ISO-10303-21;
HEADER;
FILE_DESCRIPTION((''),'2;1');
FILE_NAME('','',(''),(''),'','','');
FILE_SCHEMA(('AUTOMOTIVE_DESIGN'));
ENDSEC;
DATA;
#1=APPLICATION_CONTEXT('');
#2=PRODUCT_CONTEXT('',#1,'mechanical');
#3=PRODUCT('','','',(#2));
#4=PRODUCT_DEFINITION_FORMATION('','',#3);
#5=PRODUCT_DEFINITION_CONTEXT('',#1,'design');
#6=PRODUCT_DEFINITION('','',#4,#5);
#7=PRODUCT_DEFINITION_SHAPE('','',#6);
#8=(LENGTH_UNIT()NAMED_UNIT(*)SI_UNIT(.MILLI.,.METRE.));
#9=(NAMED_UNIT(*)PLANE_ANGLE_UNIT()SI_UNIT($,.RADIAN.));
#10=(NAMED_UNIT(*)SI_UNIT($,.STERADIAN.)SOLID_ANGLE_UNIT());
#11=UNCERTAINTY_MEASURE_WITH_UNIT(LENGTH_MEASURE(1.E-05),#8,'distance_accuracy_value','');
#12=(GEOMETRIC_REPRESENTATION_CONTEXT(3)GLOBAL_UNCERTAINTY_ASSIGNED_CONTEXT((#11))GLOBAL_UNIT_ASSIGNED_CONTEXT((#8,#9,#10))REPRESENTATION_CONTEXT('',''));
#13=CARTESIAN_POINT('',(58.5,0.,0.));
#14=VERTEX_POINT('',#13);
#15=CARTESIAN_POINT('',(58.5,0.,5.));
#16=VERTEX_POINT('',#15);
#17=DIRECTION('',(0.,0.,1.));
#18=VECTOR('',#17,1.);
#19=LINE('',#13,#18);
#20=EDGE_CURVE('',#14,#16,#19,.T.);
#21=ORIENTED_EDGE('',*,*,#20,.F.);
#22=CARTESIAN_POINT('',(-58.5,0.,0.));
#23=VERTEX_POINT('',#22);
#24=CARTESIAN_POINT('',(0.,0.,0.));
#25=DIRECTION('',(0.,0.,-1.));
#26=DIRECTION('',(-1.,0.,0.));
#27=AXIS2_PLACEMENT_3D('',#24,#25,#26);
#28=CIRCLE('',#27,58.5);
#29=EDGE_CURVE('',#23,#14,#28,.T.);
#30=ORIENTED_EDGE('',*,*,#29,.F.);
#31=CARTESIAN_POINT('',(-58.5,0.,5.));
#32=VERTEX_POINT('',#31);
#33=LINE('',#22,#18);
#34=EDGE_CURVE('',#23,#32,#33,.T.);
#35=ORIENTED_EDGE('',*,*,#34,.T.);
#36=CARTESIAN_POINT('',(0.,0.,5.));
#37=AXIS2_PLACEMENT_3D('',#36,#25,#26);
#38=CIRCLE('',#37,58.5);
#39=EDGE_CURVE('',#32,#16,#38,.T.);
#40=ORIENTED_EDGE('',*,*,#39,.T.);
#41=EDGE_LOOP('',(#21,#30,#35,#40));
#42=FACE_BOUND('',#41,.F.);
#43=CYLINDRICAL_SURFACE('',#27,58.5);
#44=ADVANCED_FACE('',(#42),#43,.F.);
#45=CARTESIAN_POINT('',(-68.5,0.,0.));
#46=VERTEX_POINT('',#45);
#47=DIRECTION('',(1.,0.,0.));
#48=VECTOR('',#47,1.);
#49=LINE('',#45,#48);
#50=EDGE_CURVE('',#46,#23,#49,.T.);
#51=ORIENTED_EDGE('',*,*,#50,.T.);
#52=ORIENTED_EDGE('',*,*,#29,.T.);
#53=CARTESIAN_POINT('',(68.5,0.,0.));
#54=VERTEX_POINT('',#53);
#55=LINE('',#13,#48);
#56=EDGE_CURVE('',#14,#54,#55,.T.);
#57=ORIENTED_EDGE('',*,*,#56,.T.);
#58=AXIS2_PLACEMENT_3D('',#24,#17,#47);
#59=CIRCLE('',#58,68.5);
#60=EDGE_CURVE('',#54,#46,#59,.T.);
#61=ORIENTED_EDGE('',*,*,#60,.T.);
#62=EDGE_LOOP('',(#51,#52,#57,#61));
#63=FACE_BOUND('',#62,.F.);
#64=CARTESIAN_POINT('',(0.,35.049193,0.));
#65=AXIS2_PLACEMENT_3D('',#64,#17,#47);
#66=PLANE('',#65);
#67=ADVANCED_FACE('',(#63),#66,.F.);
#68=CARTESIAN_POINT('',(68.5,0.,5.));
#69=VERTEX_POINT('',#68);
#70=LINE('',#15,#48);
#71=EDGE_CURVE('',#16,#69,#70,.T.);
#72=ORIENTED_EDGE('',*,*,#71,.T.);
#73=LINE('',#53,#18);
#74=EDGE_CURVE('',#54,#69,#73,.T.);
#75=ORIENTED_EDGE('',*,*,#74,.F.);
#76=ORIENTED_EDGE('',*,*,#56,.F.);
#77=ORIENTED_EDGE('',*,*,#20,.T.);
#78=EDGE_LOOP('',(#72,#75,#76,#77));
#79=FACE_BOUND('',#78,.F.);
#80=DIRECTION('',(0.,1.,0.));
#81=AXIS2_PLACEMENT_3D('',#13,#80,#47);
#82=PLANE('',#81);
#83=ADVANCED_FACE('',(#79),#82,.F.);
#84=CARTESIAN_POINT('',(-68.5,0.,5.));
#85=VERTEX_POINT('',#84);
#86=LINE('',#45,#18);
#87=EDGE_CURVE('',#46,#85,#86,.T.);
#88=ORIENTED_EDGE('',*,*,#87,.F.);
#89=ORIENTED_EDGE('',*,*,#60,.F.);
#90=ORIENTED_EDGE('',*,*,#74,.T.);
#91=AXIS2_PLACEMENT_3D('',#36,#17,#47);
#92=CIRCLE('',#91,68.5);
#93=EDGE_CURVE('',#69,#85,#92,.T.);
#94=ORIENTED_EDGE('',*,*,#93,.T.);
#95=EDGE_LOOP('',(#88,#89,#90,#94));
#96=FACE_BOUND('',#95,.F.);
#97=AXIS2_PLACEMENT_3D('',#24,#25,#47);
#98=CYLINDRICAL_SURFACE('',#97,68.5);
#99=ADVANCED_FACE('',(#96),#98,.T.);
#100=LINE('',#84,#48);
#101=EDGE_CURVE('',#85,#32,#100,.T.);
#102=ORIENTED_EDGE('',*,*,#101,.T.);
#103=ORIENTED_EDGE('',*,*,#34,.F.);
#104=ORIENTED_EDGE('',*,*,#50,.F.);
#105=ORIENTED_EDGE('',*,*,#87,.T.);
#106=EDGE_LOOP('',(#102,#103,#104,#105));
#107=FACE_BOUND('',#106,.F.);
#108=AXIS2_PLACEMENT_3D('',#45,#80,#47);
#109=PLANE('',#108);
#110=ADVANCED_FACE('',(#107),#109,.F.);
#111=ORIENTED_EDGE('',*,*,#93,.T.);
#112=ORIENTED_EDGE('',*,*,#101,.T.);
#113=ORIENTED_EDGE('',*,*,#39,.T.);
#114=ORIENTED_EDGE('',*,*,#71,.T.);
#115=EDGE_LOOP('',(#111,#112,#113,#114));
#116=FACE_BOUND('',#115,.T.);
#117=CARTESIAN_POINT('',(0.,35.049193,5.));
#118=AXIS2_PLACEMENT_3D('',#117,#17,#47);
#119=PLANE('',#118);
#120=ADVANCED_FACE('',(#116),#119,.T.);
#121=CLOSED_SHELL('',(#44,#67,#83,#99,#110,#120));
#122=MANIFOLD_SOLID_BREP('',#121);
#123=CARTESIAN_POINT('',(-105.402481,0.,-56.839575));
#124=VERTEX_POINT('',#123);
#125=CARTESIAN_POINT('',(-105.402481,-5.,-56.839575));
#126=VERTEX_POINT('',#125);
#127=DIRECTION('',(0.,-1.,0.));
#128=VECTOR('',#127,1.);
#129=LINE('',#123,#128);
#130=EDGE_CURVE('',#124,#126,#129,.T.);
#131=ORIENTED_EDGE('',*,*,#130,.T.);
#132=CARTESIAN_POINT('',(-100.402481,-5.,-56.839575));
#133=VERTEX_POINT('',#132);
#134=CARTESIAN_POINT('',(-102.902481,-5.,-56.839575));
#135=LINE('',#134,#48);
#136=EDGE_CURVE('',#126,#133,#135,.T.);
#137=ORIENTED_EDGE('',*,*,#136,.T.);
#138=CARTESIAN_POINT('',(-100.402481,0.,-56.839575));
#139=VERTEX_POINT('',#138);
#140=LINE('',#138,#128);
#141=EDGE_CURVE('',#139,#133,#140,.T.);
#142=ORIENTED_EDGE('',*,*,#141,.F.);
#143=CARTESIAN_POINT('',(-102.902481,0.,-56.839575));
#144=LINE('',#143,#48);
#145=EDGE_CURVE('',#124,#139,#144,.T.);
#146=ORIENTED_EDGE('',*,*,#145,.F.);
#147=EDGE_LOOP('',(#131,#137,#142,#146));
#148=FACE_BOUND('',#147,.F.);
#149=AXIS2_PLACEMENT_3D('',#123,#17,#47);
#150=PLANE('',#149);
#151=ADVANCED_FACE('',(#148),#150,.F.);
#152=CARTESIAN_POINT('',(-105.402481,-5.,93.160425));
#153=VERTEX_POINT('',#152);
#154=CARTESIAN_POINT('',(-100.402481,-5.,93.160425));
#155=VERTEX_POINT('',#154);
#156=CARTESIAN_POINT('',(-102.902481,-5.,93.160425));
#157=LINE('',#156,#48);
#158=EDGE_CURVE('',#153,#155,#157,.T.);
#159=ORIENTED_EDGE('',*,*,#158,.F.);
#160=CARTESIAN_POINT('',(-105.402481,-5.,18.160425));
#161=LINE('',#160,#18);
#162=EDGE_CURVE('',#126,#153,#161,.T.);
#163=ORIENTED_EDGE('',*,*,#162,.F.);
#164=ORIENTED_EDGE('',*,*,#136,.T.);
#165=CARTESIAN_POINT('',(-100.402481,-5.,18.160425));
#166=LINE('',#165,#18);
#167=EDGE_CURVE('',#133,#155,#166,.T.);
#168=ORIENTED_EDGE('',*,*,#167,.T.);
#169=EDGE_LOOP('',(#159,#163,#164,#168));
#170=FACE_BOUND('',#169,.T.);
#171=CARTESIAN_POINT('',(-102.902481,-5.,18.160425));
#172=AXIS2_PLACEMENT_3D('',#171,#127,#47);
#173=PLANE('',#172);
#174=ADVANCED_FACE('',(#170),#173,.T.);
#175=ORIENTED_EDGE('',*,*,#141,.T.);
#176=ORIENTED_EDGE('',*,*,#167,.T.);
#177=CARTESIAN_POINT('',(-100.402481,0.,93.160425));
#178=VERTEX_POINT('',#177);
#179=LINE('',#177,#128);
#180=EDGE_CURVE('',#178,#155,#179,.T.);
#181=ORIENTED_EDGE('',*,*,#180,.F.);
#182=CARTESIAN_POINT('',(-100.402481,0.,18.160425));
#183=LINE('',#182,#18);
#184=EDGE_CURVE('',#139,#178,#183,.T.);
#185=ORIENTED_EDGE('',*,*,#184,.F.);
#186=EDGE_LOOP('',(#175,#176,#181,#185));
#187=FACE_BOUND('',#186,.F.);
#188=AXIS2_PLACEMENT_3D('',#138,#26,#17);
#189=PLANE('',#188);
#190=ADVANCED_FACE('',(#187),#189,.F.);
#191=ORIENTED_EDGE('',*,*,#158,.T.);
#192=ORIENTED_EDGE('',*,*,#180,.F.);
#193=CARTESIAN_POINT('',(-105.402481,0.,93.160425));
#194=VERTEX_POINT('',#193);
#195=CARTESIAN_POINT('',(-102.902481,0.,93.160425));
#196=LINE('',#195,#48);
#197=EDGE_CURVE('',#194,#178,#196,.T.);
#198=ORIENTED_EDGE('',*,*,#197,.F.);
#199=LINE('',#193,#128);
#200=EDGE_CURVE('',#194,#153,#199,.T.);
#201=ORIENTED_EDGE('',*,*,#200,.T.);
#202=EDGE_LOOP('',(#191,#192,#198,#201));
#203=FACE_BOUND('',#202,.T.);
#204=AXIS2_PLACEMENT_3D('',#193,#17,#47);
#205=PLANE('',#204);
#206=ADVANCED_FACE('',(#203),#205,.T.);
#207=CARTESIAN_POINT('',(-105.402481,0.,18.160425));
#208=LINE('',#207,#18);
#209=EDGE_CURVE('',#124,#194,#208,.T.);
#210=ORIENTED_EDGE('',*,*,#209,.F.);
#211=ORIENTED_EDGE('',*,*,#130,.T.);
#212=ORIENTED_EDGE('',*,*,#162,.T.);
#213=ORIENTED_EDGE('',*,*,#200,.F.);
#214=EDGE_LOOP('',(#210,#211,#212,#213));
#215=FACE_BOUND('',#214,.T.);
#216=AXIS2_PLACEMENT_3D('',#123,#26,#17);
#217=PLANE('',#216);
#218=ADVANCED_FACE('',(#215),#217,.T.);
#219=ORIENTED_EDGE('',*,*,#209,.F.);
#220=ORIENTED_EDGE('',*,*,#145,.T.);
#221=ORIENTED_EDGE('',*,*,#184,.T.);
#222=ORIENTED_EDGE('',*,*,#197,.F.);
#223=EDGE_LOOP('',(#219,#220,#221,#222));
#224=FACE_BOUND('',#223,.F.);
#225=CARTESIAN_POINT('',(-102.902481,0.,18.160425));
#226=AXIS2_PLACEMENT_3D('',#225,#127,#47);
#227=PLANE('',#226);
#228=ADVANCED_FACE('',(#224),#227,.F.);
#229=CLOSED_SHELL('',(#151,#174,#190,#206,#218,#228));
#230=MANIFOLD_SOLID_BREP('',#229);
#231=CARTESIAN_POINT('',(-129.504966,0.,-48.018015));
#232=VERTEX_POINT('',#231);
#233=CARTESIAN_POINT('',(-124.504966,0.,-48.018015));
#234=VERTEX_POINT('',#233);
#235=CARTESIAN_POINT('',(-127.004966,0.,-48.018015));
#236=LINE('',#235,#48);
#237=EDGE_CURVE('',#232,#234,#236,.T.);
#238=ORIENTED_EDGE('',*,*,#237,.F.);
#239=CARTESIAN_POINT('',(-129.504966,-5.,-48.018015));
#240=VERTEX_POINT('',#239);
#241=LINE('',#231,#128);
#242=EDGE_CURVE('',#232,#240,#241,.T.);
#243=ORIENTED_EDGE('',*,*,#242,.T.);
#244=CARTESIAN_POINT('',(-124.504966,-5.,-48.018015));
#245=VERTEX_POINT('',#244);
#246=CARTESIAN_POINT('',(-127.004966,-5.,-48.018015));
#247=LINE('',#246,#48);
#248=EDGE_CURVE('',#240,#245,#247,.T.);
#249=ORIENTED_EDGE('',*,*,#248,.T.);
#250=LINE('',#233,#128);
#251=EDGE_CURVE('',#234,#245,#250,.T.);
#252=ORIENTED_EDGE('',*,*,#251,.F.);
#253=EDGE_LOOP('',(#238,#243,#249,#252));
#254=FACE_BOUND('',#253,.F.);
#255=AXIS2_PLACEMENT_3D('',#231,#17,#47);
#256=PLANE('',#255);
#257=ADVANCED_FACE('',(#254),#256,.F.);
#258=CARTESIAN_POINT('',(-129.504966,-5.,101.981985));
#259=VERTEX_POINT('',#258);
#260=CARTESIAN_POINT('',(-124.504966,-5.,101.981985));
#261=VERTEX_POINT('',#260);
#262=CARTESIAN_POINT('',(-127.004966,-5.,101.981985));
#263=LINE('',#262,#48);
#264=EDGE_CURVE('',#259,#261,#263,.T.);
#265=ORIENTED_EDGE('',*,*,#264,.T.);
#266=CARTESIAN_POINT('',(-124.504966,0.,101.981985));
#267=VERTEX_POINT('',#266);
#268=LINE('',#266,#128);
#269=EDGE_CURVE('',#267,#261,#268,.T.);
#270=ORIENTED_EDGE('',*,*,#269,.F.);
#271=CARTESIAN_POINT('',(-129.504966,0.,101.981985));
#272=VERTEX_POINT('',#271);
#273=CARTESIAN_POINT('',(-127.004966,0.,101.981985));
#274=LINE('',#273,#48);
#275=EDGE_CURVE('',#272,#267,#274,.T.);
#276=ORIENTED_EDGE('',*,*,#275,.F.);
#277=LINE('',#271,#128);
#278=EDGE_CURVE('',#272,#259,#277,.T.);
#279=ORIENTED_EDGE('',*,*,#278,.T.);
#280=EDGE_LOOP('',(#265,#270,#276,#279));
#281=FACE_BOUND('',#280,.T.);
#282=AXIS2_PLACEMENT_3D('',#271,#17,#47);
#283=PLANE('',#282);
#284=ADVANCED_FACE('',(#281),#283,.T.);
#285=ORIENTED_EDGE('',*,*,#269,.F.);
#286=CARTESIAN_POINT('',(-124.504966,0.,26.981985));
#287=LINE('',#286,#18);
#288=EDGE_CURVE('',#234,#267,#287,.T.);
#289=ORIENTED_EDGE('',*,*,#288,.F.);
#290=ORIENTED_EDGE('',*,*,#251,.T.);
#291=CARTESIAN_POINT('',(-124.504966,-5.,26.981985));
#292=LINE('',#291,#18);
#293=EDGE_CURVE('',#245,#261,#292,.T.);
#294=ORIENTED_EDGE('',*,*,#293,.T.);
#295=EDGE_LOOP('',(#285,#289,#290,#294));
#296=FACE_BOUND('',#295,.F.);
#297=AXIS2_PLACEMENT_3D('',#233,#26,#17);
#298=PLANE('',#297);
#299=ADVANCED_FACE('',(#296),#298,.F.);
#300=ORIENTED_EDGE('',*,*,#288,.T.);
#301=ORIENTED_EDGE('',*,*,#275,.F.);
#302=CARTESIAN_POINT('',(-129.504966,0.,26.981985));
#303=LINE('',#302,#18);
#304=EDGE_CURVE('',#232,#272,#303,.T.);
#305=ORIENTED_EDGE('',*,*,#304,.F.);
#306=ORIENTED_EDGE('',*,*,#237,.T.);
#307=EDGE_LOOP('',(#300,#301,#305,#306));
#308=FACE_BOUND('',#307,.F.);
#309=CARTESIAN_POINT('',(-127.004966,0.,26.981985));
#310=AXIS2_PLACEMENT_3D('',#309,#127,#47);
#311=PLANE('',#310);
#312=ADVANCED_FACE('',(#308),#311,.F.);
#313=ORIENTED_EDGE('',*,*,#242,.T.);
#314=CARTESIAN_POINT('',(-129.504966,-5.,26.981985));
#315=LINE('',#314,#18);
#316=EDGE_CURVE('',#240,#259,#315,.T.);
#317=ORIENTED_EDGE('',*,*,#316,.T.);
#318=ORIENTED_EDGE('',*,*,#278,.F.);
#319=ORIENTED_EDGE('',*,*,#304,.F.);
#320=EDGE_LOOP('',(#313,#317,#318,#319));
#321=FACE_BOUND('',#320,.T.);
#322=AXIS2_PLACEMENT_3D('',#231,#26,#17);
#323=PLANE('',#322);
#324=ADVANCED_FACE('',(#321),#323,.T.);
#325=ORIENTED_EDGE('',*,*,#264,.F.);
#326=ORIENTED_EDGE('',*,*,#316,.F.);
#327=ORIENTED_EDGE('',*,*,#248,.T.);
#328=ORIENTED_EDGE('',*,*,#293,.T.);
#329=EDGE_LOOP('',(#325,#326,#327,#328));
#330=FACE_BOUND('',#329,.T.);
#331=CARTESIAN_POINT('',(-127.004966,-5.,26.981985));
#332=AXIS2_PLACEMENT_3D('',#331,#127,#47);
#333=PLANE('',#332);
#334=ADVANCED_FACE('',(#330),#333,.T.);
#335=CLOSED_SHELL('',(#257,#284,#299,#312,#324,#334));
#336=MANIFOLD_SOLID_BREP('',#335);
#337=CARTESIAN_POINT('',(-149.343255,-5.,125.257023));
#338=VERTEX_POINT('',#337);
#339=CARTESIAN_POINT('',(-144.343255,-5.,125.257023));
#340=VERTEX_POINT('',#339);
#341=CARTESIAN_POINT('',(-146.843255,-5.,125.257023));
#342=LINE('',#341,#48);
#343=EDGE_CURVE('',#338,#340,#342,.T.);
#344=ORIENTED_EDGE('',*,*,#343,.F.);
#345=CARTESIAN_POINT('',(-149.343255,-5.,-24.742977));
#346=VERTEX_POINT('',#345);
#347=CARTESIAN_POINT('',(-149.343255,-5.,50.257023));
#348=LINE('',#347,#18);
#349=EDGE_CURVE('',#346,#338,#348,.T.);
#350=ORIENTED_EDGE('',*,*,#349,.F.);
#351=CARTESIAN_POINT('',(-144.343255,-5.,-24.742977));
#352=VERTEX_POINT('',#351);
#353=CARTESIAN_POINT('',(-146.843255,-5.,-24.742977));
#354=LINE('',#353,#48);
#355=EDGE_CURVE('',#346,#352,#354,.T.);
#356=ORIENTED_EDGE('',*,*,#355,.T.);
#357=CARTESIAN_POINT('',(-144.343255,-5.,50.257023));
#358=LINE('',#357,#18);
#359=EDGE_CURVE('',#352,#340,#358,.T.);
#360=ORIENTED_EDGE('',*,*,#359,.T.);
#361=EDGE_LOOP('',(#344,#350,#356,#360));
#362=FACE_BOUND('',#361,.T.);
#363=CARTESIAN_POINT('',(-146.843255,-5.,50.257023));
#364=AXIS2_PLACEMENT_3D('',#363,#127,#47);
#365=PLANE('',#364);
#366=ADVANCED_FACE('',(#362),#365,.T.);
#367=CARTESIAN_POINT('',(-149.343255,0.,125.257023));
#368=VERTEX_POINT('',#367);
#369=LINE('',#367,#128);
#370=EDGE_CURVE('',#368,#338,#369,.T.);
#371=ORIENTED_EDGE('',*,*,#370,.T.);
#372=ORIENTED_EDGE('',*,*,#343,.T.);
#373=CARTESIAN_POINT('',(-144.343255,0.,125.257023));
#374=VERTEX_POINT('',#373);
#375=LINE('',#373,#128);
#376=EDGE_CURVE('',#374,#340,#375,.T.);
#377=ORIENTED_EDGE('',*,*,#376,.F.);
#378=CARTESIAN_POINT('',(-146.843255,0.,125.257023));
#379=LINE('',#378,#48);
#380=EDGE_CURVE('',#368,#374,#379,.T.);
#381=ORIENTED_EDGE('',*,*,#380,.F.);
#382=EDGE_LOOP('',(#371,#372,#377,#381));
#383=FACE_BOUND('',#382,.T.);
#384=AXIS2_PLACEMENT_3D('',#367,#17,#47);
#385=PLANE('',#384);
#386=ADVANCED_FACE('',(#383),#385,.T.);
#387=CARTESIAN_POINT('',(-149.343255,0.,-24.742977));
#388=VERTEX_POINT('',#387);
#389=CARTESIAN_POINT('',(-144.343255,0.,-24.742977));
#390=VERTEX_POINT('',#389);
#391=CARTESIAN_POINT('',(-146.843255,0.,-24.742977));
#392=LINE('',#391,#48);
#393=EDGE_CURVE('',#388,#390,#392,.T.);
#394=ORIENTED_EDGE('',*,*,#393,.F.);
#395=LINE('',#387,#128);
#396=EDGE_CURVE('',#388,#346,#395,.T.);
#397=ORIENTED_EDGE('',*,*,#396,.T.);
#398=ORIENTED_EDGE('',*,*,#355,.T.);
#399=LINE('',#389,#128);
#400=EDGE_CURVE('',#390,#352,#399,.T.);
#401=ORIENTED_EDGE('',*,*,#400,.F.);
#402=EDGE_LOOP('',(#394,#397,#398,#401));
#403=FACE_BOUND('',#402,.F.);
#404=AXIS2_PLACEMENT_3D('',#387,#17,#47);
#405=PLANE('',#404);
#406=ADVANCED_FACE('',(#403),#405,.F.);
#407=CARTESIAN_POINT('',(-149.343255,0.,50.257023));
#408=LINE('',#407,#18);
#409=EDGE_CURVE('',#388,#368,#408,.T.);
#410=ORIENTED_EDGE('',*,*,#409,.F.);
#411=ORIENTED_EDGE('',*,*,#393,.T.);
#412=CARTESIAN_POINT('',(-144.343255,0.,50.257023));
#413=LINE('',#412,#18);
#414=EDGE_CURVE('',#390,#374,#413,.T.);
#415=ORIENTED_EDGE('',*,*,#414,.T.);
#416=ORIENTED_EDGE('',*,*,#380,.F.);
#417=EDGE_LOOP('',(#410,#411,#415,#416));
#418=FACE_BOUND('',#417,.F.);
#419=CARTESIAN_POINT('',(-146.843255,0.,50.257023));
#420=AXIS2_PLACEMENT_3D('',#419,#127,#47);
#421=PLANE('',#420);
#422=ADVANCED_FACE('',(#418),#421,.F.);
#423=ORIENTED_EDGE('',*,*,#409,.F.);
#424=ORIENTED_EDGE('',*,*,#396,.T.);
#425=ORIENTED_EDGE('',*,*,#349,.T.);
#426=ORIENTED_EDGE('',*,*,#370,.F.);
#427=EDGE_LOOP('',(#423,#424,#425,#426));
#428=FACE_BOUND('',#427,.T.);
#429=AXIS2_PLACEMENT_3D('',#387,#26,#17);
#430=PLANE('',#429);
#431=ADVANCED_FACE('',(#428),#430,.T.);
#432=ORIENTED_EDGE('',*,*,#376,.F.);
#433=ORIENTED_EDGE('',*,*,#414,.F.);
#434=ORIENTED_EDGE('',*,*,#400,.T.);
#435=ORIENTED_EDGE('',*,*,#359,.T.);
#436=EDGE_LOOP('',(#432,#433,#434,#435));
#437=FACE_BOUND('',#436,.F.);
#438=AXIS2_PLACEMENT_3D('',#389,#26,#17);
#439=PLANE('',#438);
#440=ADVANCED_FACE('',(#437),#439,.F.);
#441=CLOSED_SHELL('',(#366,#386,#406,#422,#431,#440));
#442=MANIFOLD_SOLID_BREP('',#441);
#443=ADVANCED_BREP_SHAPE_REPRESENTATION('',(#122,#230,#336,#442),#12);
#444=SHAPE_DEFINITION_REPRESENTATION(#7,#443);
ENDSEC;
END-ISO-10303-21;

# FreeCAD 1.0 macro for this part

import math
import FreeCAD as App
import Part
import Sketcher
from FreeCAD import Vector
Q = App.Units.Quantity


def add_polygon(sketch, points):
    """Adds a closed chain of lines whose ends are joined by coincident constraints."""
    first, n = sketch.GeometryCount, len(points)
    for a, b in zip(points, points[1:] + points[:1]):
        sketch.addGeometry(Part.LineSegment(App.Vector(*a, 0), App.Vector(*b, 0)), False)
    for i in range(n):
        sketch.addConstraint(Sketcher.Constraint("Coincident", first + i, 2, first + (i + 1) % n, 1))

doc = App.newDocument("Part")
body = doc.addObject("PartDesign::Body", "Body")

# Sketch on XY plane
sketch1 = body.newObject("Sketcher::SketchObject", "Sketch")
sketch1.AttachmentSupport = (doc.getObject("XY_Plane"), [""])
sketch1.MapMode = "FlatFace"
sketch1.addGeometry([
    Part.LineSegment(Vector(-68, 0, 0), Vector(-58, 0, 0)),
    Part.ArcOfCircle(Part.Circle(Vector(0, 0, 0), Vector(0, 0, 1), 58), math.radians(0), math.radians(180)),
    Part.LineSegment(Vector(58, 0, 0), Vector(68, 0, 0)),
    Part.ArcOfCircle(Part.Circle(Vector(0, 0, 0), Vector(0, 0, 1), 68), math.radians(0), math.radians(180)),
], False)
sketch1.addConstraint([
    Sketcher.Constraint("Coincident", 0, 2, 1, 2),
    Sketcher.Constraint("Coincident", 1, 1, 2, 1),
    Sketcher.Constraint("Coincident", 2, 2, 3, 1),
    Sketcher.Constraint("Coincident", 3, 2, 0, 1),
    Sketcher.Constraint("Horizontal", 0),
    Sketcher.Constraint("Horizontal", 2),
    Sketcher.Constraint("Coincident", 1, 3, -1, 1),
    Sketcher.Constraint("Coincident", 3, 3, -1, 1),
    Sketcher.Constraint("PointOnObject", 0, 2, -1),
    Sketcher.Constraint("PointOnObject", 1, 1, -1),
    Sketcher.Constraint("Radius", 1, Q("58.5 mm")),
    Sketcher.Constraint("Radius", 3, Q("68.5 mm")),
])
pad1 = body.newObject("PartDesign::Pad", "Pad")
pad1.Profile = sketch1
pad1.Length = 5
body2 = doc.addObject("PartDesign::Body", "Body001")
body2.AllowCompound = True

# Sketch on XZ plane
sketch2 = body2.newObject("Sketcher::SketchObject", "Sketch001")
sketch2.AttachmentSupport = (doc.getObject("XZ_Plane001"), [""])
sketch2.MapMode = "FlatFace"
add_polygon(sketch2, [(-105, 93), (-105, -57), (-100, -57), (-100, 93)])  # lines 0-3
add_polygon(sketch2, [(-130, 102), (-130, -48), (-125, -48), (-125, 102)])  # lines 4-7
add_polygon(sketch2, [(-149, 125), (-149, -25), (-144, -25), (-144, 125)])  # lines 8-11
sketch2.addConstraint([
    Sketcher.Constraint("Vertical", 0),
    Sketcher.Constraint("Horizontal", 1),
    Sketcher.Constraint("Vertical", 2),
    Sketcher.Constraint("Horizontal", 3),
    Sketcher.Constraint("Vertical", 4),
    Sketcher.Constraint("Horizontal", 5),
    Sketcher.Constraint("Vertical", 6),
    Sketcher.Constraint("Horizontal", 7),
    Sketcher.Constraint("Vertical", 8),
    Sketcher.Constraint("Horizontal", 9),
    Sketcher.Constraint("Vertical", 10),
    Sketcher.Constraint("Horizontal", 11),
    Sketcher.Constraint("Equal", 3, 5),
    Sketcher.Constraint("Equal", 7, 9),
    Sketcher.Constraint("Equal", 2, 4),
    Sketcher.Constraint("Equal", 6, 8),
    Sketcher.Constraint("DistanceX", 1, 1, 1, 2, Q("5 mm")),
    Sketcher.Constraint("DistanceY", 0, 2, 0, 1, Q("150 mm")),
    Sketcher.Constraint("DistanceY", 8, 2, 3, 2, Q("117.903402 mm")),
    Sketcher.Constraint("DistanceX", 0, 2, -1, 1, Q("105.402481 mm")),
    Sketcher.Constraint("DistanceY", 0, 2, 4, 2, Q("8.82156 mm")),
    Sketcher.Constraint("DistanceX", 8, 2, 4, 2, Q("19.838289 mm")),
    Sketcher.Constraint("DistanceY", 0, 2, -1, 1, Q("56.839575 mm")),
    Sketcher.Constraint("DistanceX", 4, 2, -1, 1, Q("129.504966 mm")),
])
pad2 = body2.newObject("PartDesign::Pad", "Pad001")
pad2.Profile = sketch2
pad2.Length = 5

doc.recompute()
